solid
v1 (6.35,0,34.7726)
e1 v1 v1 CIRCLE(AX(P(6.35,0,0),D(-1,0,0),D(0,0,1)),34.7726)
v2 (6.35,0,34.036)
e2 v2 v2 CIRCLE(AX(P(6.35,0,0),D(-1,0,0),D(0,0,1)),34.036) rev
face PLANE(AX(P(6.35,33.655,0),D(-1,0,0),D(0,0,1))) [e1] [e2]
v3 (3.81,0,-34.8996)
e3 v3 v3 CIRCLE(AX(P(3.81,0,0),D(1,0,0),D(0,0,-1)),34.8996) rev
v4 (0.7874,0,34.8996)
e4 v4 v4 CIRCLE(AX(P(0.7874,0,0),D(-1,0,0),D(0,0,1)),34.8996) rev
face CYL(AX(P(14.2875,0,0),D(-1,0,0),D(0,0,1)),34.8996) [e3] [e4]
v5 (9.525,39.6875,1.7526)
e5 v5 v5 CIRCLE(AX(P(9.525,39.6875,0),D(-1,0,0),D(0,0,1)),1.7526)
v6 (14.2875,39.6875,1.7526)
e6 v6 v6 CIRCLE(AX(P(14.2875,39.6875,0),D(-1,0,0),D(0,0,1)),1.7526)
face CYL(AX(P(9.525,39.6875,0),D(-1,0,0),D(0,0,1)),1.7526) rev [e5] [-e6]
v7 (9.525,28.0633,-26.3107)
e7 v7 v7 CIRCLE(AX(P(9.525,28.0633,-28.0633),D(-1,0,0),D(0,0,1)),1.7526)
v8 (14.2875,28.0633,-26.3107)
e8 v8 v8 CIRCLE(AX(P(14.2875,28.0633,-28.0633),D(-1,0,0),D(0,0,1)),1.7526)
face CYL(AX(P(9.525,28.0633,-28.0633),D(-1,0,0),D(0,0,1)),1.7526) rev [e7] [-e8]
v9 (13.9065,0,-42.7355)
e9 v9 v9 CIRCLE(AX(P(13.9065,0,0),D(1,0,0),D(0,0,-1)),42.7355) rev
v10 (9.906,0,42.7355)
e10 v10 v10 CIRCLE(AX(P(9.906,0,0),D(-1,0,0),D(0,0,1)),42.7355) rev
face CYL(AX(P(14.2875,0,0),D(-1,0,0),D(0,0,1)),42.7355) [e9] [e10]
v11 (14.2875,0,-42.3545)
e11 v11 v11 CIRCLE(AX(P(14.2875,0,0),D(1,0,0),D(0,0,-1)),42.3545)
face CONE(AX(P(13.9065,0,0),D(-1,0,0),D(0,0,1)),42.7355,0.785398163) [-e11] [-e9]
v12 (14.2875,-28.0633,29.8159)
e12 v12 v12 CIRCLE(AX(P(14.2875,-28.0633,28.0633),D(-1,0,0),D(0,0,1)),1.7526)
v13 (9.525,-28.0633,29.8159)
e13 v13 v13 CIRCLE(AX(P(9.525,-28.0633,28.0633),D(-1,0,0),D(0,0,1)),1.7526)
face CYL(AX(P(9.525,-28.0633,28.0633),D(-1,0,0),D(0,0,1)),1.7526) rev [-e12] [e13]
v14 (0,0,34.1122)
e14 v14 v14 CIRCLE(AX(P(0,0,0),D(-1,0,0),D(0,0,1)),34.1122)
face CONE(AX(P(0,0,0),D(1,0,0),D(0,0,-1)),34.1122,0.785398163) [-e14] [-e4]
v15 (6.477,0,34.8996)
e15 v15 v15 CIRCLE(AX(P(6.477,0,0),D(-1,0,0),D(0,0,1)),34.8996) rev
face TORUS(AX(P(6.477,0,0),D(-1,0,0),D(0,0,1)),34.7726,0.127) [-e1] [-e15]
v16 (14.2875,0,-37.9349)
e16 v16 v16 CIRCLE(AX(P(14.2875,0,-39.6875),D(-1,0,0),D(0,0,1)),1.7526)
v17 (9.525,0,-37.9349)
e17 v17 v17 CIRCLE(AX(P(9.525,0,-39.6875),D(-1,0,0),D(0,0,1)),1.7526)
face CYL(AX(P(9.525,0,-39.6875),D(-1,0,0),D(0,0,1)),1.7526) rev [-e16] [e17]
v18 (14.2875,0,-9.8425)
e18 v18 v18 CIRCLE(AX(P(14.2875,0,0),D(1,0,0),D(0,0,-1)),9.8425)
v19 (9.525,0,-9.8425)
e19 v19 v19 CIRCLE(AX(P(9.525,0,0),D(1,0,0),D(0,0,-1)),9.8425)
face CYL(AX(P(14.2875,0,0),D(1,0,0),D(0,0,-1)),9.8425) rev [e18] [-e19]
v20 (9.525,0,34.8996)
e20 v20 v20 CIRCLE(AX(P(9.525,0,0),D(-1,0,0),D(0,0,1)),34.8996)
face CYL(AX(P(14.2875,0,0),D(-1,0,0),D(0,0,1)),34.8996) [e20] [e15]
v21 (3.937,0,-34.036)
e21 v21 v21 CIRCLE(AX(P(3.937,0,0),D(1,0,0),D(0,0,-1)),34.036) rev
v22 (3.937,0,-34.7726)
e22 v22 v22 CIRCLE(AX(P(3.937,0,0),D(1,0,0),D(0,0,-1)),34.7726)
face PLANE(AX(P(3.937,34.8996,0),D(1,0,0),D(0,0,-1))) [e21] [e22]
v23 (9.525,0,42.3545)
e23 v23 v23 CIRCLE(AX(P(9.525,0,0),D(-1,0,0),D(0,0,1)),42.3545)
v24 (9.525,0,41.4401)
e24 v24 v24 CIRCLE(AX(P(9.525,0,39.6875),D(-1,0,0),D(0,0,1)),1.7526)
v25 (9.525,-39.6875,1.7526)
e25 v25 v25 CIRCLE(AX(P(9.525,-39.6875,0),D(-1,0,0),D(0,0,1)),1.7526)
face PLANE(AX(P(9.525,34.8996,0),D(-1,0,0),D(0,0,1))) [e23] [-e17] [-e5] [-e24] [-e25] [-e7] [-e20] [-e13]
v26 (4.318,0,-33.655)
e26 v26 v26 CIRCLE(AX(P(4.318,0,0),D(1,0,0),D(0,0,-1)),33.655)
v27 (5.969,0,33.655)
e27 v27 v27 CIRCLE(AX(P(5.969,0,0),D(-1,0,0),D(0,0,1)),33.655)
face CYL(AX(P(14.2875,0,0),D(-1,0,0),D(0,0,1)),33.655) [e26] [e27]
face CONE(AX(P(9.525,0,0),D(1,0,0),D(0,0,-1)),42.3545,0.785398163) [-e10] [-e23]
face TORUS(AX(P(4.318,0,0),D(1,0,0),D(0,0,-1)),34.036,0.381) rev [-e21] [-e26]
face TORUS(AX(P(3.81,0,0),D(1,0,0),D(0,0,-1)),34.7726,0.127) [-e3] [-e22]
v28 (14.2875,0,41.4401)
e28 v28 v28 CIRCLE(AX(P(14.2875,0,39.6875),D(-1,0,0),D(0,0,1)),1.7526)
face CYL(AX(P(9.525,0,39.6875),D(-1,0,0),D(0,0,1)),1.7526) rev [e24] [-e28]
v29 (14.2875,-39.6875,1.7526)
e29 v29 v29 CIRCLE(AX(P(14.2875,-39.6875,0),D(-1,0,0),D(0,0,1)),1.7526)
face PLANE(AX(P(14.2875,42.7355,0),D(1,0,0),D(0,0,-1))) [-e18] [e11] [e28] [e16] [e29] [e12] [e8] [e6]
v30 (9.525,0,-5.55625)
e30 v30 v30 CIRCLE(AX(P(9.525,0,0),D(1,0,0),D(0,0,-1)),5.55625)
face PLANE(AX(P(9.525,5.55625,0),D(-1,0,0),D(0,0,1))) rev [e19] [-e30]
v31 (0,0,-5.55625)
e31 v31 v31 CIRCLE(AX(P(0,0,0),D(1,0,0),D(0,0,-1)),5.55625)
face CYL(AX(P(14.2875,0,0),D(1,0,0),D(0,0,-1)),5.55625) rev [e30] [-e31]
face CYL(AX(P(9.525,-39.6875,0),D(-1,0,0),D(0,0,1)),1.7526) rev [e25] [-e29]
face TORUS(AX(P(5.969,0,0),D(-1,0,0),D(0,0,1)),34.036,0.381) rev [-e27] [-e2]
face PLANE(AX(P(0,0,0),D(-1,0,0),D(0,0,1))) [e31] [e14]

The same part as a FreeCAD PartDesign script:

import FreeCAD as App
import Part
import Sketcher
Q = App.Units.Quantity


def edges_at(feature, points):
    """Names of the edges that pass closest to the given points."""
    edges = feature.Shape.Edges
    near = lambda p: min(range(len(edges)), key=lambda i: edges[i].distToShape(Part.Vertex(*p))[0])
    return sorted({f"Edge{near(p) + 1}" for p in points})


def add_polygon(sketch, points):
    """Adds a closed chain of lines whose ends are joined by coincident constraints."""
    first, n = sketch.GeometryCount, len(points)
    for a, b in zip(points, points[1:] + points[:1]):
        sketch.addGeometry(Part.LineSegment(App.Vector(*a, 0), App.Vector(*b, 0)), False)
    for i in range(n):
        sketch.addConstraint(Sketcher.Constraint("Coincident", first + i, 2, first + (i + 1) % n, 1))

doc = App.newDocument("Part")
body = doc.addObject("PartDesign::Body", "Body")

sketch1 = body.newObject("Sketcher::SketchObject", "Sketch")
sketch1.AttachmentSupport = (doc.getObject("XY_Plane"), [""])
sketch1.MapMode = "FlatFace"
add_polygon(sketch1, [(14.3, 42.7), (14.3, 0), (0, 0), (0, 34.9), (3.9, 34.9), (3.9, 33.7), (6.3, 33.7), (6.3, 34.9), (9.5, 34.9), (9.5, 42.7)])
sketch1.addConstraint([
    Sketcher.Constraint("Vertical", 0),
    Sketcher.Constraint("Horizontal", 1),
    Sketcher.Constraint("Vertical", 2),
    Sketcher.Constraint("Horizontal", 3),
    Sketcher.Constraint("Vertical", 4),
    Sketcher.Constraint("Horizontal", 5),
    Sketcher.Constraint("Vertical", 6),
    Sketcher.Constraint("Horizontal", 7),
    Sketcher.Constraint("Vertical", 8),
    Sketcher.Constraint("Horizontal", 9),
    Sketcher.Constraint("Coincident", 1, 2, -1, 1),
    Sketcher.Constraint("Horizontal", 3, 2, 6, 2),
    Sketcher.Constraint("DistanceX", 1, 2, 1, 1, Q("0.5625 in")),
    Sketcher.Constraint("DistanceX", 3, 1, 3, 2, Q("0.155 in")),
    Sketcher.Constraint("DistanceX", 5, 1, 5, 2, Q("0.095 in")),
    Sketcher.Constraint("DistanceX", 7, 1, 7, 2, Q("0.125 in")),
    Sketcher.Constraint("DistanceY", 2, 1, 2, 2, Q("1.374 in")),
    Sketcher.Constraint("DistanceY", 4, 2, 4, 1, Q("0.049 in")),
    Sketcher.Constraint("DistanceY", 0, 2, 0, 1, Q("1.6825 in")),
])
revolution = body.newObject("PartDesign::Revolution", "Revolution")
revolution.Profile = sketch1
revolution.ReferenceAxis = (sketch1, ["H_Axis"])
revolution.Angle = 360

sketch2 = body.newObject("Sketcher::SketchObject", "Sketch001")
sketch2.AttachmentSupport = (doc.getObject("YZ_Plane"), [""])
sketch2.MapMode = "FlatFace"
sketch2.AttachmentOffset = App.Placement(App.Vector(0, 0, 0.375 * 25.4), App.Rotation())
sketch2.addGeometry([
    Part.Circle(App.Vector(-28.1, 28.1, 0), App.Vector(0, 0, 1), 1.8),
    Part.Circle(App.Vector(28.1, -28.1, 0), App.Vector(0, 0, 1), 1.8),
    Part.Circle(App.Vector(0, 39.7, 0), App.Vector(0, 0, 1), 1.8),
    Part.Circle(App.Vector(0, -39.7, 0), App.Vector(0, 0, 1), 1.8),
    Part.Circle(App.Vector(-39.7, 0, 0), App.Vector(0, 0, 1), 1.8),
    Part.Circle(App.Vector(39.7, 0, 0), App.Vector(0, 0, 1), 1.8),
], False)
sketch2.addConstraint([
    Sketcher.Constraint("Equal", 0, 1),
    Sketcher.Constraint("Equal", 1, 2),
    Sketcher.Constraint("Equal", 2, 3),
    Sketcher.Constraint("Equal", 3, 4),
    Sketcher.Constraint("Equal", 4, 5),
    Sketcher.Constraint("Symmetric", 0, 3, 1, 3, -1, 1),
    Sketcher.Constraint("Symmetric", 2, 3, 3, 3, -1, 1),
    Sketcher.Constraint("Symmetric", 4, 3, 5, 3, -1, 1),
    Sketcher.Constraint("PointOnObject", 2, 3, -2),
    Sketcher.Constraint("PointOnObject", 4, 3, -1),
    Sketcher.Constraint("Diameter", 0, Q("0.138 in")),
    Sketcher.Constraint("DistanceY", -1, 1, 2, 3, Q("1.5625 in")),
    Sketcher.Constraint("DistanceX", 4, 3, -1, 1, Q("1.5625 in")),
    Sketcher.Constraint("DistanceX", 0, 3, -1, 1, 28.0633),
    Sketcher.Constraint("DistanceY", -1, 1, 0, 3, 28.0633),
])
doc.recompute()
hole = body.newObject("PartDesign::Hole", "Hole")
hole.Profile = sketch2
hole.ThreadType = "None"
hole.Diameter = Q("0.138 in")
hole.DepthType = "Dimension"
hole.Depth = Q("0.1875 in")
hole.DrillPoint = "Flat"
hole.Reversed = True

sketch3 = body.newObject("Sketcher::SketchObject", "Sketch002")
sketch3.AttachmentSupport = (doc.getObject("YZ_Plane"), [""])
sketch3.MapMode = "FlatFace"
sketch3.AttachmentOffset = App.Placement(App.Vector(0, 0, 0.5625 * 25.4), App.Rotation())
sketch3.addGeometry(Part.Circle(App.Vector(0, 0, 0), App.Vector(0, 0, 1), 6), False)
sketch3.addConstraint([
    Sketcher.Constraint("Coincident", 0, 3, -1, 1),
    Sketcher.Constraint("Diameter", 0, Q("0.4375 in")),
])
doc.recompute()
hole2 = body.newObject("PartDesign::Hole", "Hole001")
hole2.Profile = sketch3
hole2.ThreadType = "None"
hole2.Diameter = Q("0.4375 in")
hole2.DepthType = "Dimension"
hole2.Depth = Q("0.5625 in")
hole2.DrillPoint = "Flat"
hole2.HoleCutType = "Counterbore"
hole2.HoleCutDiameter = Q("0.775 in")
hole2.HoleCutDepth = Q("0.1875 in")
doc.recompute()

chamfer = body.newObject("PartDesign::Chamfer", "Chamfer")
chamfer.Base = (hole2, edges_at(hole2, [(14.287, -42.736, 0), (9.525, -42.736, 0)]))
chamfer.Size = Q("0.015 in")
doc.recompute()

chamfer2 = body.newObject("PartDesign::Chamfer", "Chamfer001")
chamfer2.Base = (chamfer, edges_at(chamfer, [(0, -34.9, 0)]))
chamfer2.Size = Q("0.031 in")
doc.recompute()

fillet = body.newObject("PartDesign::Fillet", "Fillet")
fillet.Base = (chamfer2, edges_at(chamfer2, [(6.35, -34.9, 0), (3.937, -34.9, 0)]))
fillet.Radius = Q("0.005 in")
doc.recompute()

fillet2 = body.newObject("PartDesign::Fillet", "Fillet001")
fillet2.Base = (fillet, edges_at(fillet, [(6.35, -33.655, 0), (3.937, -33.655, 0)]))
fillet2.Radius = Q("0.015 in")

doc.recompute()
